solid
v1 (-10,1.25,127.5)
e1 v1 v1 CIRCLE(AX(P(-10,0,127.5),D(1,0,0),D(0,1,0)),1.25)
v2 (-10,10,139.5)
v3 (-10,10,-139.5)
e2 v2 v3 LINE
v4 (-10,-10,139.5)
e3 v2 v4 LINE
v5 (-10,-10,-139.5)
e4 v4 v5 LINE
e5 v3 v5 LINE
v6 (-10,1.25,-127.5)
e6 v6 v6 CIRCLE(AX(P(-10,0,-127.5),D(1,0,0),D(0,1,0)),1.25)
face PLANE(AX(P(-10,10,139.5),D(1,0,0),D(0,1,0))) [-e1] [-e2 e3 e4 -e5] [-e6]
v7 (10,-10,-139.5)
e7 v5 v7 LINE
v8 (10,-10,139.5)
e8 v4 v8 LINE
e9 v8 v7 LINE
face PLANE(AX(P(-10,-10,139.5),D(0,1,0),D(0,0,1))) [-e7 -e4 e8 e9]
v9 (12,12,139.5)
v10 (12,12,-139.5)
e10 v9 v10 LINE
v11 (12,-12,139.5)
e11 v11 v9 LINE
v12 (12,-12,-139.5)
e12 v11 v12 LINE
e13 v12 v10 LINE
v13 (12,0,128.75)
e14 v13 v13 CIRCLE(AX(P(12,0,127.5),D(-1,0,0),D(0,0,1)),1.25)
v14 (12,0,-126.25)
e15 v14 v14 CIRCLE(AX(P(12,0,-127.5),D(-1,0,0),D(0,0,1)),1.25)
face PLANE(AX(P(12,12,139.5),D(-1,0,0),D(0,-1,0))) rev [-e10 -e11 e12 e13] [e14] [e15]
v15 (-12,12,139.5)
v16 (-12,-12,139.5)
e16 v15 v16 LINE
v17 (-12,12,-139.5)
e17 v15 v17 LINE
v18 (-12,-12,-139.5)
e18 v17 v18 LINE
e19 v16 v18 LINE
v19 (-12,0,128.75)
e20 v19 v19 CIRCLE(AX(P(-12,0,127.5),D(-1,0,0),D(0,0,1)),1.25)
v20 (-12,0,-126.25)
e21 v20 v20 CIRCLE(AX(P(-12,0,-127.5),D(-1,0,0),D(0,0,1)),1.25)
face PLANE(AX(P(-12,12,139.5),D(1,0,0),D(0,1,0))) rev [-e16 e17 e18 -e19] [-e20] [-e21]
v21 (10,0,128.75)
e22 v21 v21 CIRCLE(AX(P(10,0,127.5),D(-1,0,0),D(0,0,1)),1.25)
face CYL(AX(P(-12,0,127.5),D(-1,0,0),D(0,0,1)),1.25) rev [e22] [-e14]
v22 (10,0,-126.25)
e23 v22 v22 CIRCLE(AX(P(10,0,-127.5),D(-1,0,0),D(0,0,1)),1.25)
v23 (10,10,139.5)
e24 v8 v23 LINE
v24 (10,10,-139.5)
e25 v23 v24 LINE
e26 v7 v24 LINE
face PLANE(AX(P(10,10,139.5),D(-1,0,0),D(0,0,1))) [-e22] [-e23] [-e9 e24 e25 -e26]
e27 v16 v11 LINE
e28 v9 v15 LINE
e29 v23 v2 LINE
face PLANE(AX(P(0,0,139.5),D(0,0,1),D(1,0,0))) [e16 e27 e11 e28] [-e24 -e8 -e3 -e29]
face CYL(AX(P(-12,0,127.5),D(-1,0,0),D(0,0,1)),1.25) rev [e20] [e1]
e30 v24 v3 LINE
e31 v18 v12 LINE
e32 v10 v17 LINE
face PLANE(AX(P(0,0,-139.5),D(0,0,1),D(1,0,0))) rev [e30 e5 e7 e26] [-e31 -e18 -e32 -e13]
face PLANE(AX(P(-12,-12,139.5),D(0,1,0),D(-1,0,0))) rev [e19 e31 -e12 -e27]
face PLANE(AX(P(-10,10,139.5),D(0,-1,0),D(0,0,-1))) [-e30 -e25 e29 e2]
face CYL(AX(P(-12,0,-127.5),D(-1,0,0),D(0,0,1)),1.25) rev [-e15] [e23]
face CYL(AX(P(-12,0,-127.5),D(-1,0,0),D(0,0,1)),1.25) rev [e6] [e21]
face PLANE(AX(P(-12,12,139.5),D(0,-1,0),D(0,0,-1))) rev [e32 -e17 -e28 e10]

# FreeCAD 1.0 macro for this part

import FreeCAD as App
import Part
import Sketcher
from FreeCAD import Vector

doc = App.newDocument("Part")
body = doc.addObject("PartDesign::Body", "Body")

# Sketch on XY plane
sketch1 = body.newObject("Sketcher::SketchObject", "Sketch")
sketch1.AttachmentSupport = (doc.getObject("XY_Plane"), [""])
sketch1.MapMode = "FlatFace"
sketch1.addGeometry([
    Part.LineSegment(Vector(-12, 12, 0), Vector(-12, -12, 0)),  # 0
    Part.LineSegment(Vector(-12, -12, 0), Vector(12, -12, 0)),  # 1
    Part.LineSegment(Vector(12, -12, 0), Vector(12, 12, 0)),  # 2
    Part.LineSegment(Vector(12, 12, 0), Vector(-12, 12, 0)),  # 3
    Part.LineSegment(Vector(10, -10, 0), Vector(-10, -10, 0)),  # 4
    Part.LineSegment(Vector(-10, -10, 0), Vector(-10, 10, 0)),  # 5
    Part.LineSegment(Vector(-10, 10, 0), Vector(10, 10, 0)),  # 6
    Part.LineSegment(Vector(10, 10, 0), Vector(10, -10, 0)),  # 7
], False)
sketch1.addConstraint([
    Sketcher.Constraint("Coincident", 0, 2, 1, 1),
    Sketcher.Constraint("Coincident", 1, 2, 2, 1),
    Sketcher.Constraint("Coincident", 2, 2, 3, 1),
    Sketcher.Constraint("Coincident", 3, 2, 0, 1),
    Sketcher.Constraint("Coincident", 4, 2, 5, 1),
    Sketcher.Constraint("Coincident", 5, 2, 6, 1),
    Sketcher.Constraint("Coincident", 6, 2, 7, 1),
    Sketcher.Constraint("Coincident", 7, 2, 4, 1),
    Sketcher.Constraint("Vertical", 0),
    Sketcher.Constraint("Horizontal", 1),
    Sketcher.Constraint("Vertical", 2),
    Sketcher.Constraint("Horizontal", 3),
    Sketcher.Constraint("Horizontal", 4),
    Sketcher.Constraint("Vertical", 5),
    Sketcher.Constraint("Horizontal", 6),
    Sketcher.Constraint("Vertical", 7),
    Sketcher.Constraint("Symmetric", 0, 2, 2, 2, -1, 1),
    Sketcher.Constraint("Symmetric", 4, 2, 6, 2, -1, 1),
    Sketcher.Constraint("Equal", 3, 0),
    Sketcher.Constraint("Equal", 6, 5),
    Sketcher.Constraint("DistanceX", 1, 1, 1, 2, 24.0),
    Sketcher.Constraint("DistanceX", 4, 2, 4, 1, 20.0),
])
pad1 = body.newObject("PartDesign::Pad", "Pad")
pad1.Profile = sketch1
pad1.Length = 279
pad1.Midplane = True

# Sketch on YZ plane
sketch2 = body.newObject("Sketcher::SketchObject", "Sketch001")
sketch2.AttachmentSupport = (doc.getObject("YZ_Plane"), [""])
sketch2.MapMode = "FlatFace"
sketch2.AttachmentOffset = App.Placement(Vector(0, 0, -12), App.Rotation())
sketch2.addGeometry(Part.Circle(Vector(0, -127.5, 0), Vector(0, 0, 1), 1.2), False)
sketch2.addConstraint([
    Sketcher.Constraint("PointOnObject", 0, 3, -2),
    Sketcher.Constraint("Diameter", 0, 2.5),
    Sketcher.Constraint("DistanceY", 0, 3, -1, 1, 127.5),
])
doc.recompute()
hole = body.newObject("PartDesign::Hole", "Hole")
hole.Profile = sketch2
hole.ThreadType = "None"
hole.Diameter = 2.5
hole.DepthType = "ThroughAll"
hole.Reversed = True
doc.recompute()

mirrored = body.newObject("PartDesign::Mirrored", "Mirrored")
mirrored.Originals = [hole]
mirrored.MirrorPlane = (doc.getObject("XY_Plane"), [""])
body.Tip = mirrored

doc.recompute()
